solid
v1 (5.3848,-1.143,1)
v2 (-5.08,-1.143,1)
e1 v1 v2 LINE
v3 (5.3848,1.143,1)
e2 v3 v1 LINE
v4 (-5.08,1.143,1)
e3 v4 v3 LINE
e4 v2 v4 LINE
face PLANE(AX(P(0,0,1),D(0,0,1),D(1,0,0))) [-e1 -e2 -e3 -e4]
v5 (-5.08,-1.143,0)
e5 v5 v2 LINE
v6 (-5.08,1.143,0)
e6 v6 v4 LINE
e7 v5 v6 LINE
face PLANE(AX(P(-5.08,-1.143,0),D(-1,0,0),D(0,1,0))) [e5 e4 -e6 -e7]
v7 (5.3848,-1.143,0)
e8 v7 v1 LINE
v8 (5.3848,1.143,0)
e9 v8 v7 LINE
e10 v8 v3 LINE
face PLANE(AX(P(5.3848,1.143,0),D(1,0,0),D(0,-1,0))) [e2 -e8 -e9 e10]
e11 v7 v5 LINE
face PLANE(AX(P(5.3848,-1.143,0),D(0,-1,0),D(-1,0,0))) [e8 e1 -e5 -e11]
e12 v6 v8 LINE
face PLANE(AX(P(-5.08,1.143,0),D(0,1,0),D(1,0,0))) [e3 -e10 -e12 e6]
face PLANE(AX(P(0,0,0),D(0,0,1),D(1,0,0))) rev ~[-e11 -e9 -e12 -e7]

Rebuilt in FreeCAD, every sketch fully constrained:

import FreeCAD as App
import Part
import Sketcher
from FreeCAD import Vector
Q = App.Units.Quantity


def add_polygon(sketch, points):
    """Adds a closed chain of lines whose ends are joined by coincident constraints."""
    first, n = sketch.GeometryCount, len(points)
    for a, b in zip(points, points[1:] + points[:1]):
        sketch.addGeometry(Part.LineSegment(App.Vector(*a, 0), App.Vector(*b, 0)), False)
    for i in range(n):
        sketch.addConstraint(Sketcher.Constraint("Coincident", first + i, 2, first + (i + 1) % n, 1))

doc = App.newDocument("Part")
params = doc.addObject("Spreadsheet::Sheet", "Params")
for row, (alias, value) in enumerate([
    ("sketch1_height", "0.09 in"),
    ("sketch1_width", "0.412 in"),
    ("pad1_length", "1 mm"),
], start=1):
    params.set(f"A{row}", alias)
    params.set(f"B{row}", "=" + value)
    params.setAlias(f"B{row}", alias)

body = doc.addObject("PartDesign::Body", "Body")

sketch1 = body.newObject("Sketcher::SketchObject", "Sketch")
sketch1.AttachmentSupport = (doc.getObject("XY_Plane"), [""])
sketch1.MapMode = "FlatFace"
add_polygon(sketch1, [(5.3848, 1.143), (-5.08, 1.143), (-5.08, -1.143), (5.3848, -1.143)])
sketch1.addConstraint(Sketcher.Constraint("Horizontal", 0))
sketch1.addConstraint(Sketcher.Constraint("Vertical", 1))
sketch1.addConstraint(Sketcher.Constraint("Horizontal", 2))
sketch1.addConstraint(Sketcher.Constraint("Vertical", 3))
sketch1.addConstraint(Sketcher.Constraint("DistanceY", 1, 2, 1, 1, Q("0.09 in")))
sketch1.addConstraint(Sketcher.Constraint("DistanceX", 0, 2, -1, 1, Q("0.2 in")))
sketch1.addConstraint(Sketcher.Constraint("DistanceX", 0, 2, 0, 1, Q("0.412 in")))
sketch1.addConstraint(Sketcher.Constraint("DistanceY", -1, 1, 0, 2, Q("0.045 in")))
sketch1.setExpression("Constraints[8]", "Params.sketch1_height")
sketch1.setExpression("Constraints[10]", "Params.sketch1_width")
pad1 = body.newObject("PartDesign::Pad", "Pad")
pad1.Profile = sketch1
pad1.setExpression("Length", "Params.pad1_length")

doc.recompute()
